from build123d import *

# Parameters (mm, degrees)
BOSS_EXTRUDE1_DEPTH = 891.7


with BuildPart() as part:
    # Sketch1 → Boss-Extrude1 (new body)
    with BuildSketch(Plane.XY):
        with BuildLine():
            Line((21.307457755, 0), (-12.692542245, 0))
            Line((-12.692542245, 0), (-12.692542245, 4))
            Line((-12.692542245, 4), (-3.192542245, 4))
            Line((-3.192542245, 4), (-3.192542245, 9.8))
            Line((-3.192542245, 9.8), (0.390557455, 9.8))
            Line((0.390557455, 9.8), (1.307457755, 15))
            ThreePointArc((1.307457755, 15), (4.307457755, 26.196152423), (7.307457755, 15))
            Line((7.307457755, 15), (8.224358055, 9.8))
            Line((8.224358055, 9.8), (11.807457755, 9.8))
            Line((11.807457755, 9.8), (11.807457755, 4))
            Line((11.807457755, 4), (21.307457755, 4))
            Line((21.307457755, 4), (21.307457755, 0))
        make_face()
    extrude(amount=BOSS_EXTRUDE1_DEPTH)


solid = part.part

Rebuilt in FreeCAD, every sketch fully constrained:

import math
import FreeCAD as App
import Part
import Sketcher

V = App.Vector
Q = App.Units.Quantity

doc = App.newDocument("Part")
body = doc.addObject("PartDesign::Body", "Body")

# Sketch on XY plane
sketch1 = body.newObject("Sketcher::SketchObject", "Sketch")
sketch1.AttachmentSupport = (doc.getObject("XY_Plane"), [""])
sketch1.MapMode = "FlatFace"
sketch1.addGeometry(Part.LineSegment(V(-12.7, 0, 0), V(21.3, 0, 0)), False)
sketch1.addGeometry(Part.LineSegment(V(21.3, 0, 0), V(21.3, 4, 0)), False)
sketch1.addGeometry(Part.LineSegment(V(21.3, 4, 0), V(11.8, 4, 0)), False)
sketch1.addGeometry(Part.LineSegment(V(11.8, 4, 0), V(11.8, 9.8, 0)), False)
sketch1.addGeometry(Part.LineSegment(V(11.8, 9.8, 0), V(8.2, 9.8, 0)), False)
sketch1.addGeometry(Part.LineSegment(V(8.2, 9.8, 0), V(7.3, 15, 0)), False)
sketch1.addGeometry(Part.ArcOfCircle(Part.Circle(V(4.3, 20.2, 0), V(0, 0, 1), 6), math.radians(-60), math.radians(240)), False)
sketch1.addGeometry(Part.LineSegment(V(1.3, 15, 0), V(0.4, 9.8, 0)), False)
sketch1.addGeometry(Part.LineSegment(V(0.4, 9.8, 0), V(-3.2, 9.8, 0)), False)
sketch1.addGeometry(Part.LineSegment(V(-3.2, 9.8, 0), V(-3.2, 4, 0)), False)
sketch1.addGeometry(Part.LineSegment(V(-3.2, 4, 0), V(-12.7, 4, 0)), False)
sketch1.addGeometry(Part.LineSegment(V(-12.7, 4, 0), V(-12.7, 0, 0)), False)
sketch1.addConstraint(Sketcher.Constraint("Coincident", 0, 2, 1, 1))
sketch1.addConstraint(Sketcher.Constraint("Coincident", 1, 2, 2, 1))
sketch1.addConstraint(Sketcher.Constraint("Coincident", 2, 2, 3, 1))
sketch1.addConstraint(Sketcher.Constraint("Coincident", 3, 2, 4, 1))
sketch1.addConstraint(Sketcher.Constraint("Coincident", 4, 2, 5, 1))
sketch1.addConstraint(Sketcher.Constraint("Coincident", 5, 2, 6, 1))
sketch1.addConstraint(Sketcher.Constraint("Coincident", 6, 2, 7, 1))
sketch1.addConstraint(Sketcher.Constraint("Coincident", 7, 2, 8, 1))
sketch1.addConstraint(Sketcher.Constraint("Coincident", 8, 2, 9, 1))
sketch1.addConstraint(Sketcher.Constraint("Coincident", 9, 2, 10, 1))
sketch1.addConstraint(Sketcher.Constraint("Coincident", 10, 2, 11, 1))
sketch1.addConstraint(Sketcher.Constraint("Coincident", 11, 2, 0, 1))
sketch1.addConstraint(Sketcher.Constraint("Horizontal", 0))
sketch1.addConstraint(Sketcher.Constraint("Vertical", 1))
sketch1.addConstraint(Sketcher.Constraint("Horizontal", 2))
sketch1.addConstraint(Sketcher.Constraint("Vertical", 3))
sketch1.addConstraint(Sketcher.Constraint("Horizontal", 4))
sketch1.addConstraint(Sketcher.Constraint("Horizontal", 8))
sketch1.addConstraint(Sketcher.Constraint("Vertical", 9))
sketch1.addConstraint(Sketcher.Constraint("Horizontal", 10))
sketch1.addConstraint(Sketcher.Constraint("Vertical", 11))
sketch1.addConstraint(Sketcher.Constraint("PointOnObject", 0, 2, -1))
sketch1.addConstraint(Sketcher.Constraint("Horizontal", 5, 2, 6, 2))
sketch1.addConstraint(Sketcher.Constraint("Horizontal", 4, 2, 7, 2))
sketch1.addConstraint(Sketcher.Constraint("Horizontal", 2, 2, 9, 2))
sketch1.addConstraint(Sketcher.Constraint("Equal", 4, 8))
sketch1.addConstraint(Sketcher.Constraint("Equal", 2, 10))
sketch1.addConstraint(Sketcher.Constraint("Equal", 5, 7))
sketch1.addConstraint(Sketcher.Constraint("Radius", 6, Q("6 mm")))
sketch1.addConstraint(Sketcher.Constraint("DistanceX", 0, 1, 0, 2, Q("34 mm")))
sketch1.addConstraint(Sketcher.Constraint("DistanceY", 1, 1, 1, 2, Q("4 mm")))
sketch1.addConstraint(Sketcher.Constraint("Angle", 5, Q("100 deg")))
sketch1.addConstraint(Sketcher.Constraint("DistanceX", 2, 2, 2, 1, Q("9.5 mm")))
sketch1.addConstraint(Sketcher.Constraint("DistanceY", 3, 1, 3, 2, Q("5.8 mm")))
sketch1.addConstraint(Sketcher.Constraint("DistanceY", -1, 1, 5, 2, Q("15 mm")))
sketch1.addConstraint(Sketcher.Constraint("DistanceX", 6, 3, 5, 2, Q("3 mm")))
sketch1.addConstraint(Sketcher.Constraint("DistanceX", -1, 1, 4, 2, Q("8.224358 mm")))
pad1 = body.newObject("PartDesign::Pad", "Pad")
pad1.Profile = sketch1
pad1.Length = 891.7

doc.recompute()
